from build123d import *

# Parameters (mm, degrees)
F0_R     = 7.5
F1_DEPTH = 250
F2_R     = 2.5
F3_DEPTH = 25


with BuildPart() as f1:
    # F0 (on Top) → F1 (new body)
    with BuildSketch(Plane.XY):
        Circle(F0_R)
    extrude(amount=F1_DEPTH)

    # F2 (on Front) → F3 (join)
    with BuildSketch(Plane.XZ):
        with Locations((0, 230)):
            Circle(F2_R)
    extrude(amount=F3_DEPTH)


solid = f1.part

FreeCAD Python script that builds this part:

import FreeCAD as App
import Part
import Sketcher

doc = App.newDocument("Part")
body = doc.addObject("PartDesign::Body", "Body")

sketch1 = doc.addObject("Sketcher::SketchObject", "Sketch")
body.addObject(sketch1)
sketch1.AttachmentSupport = (doc.XY_Plane, [""])
sketch1.MapMode = "FlatFace"
sketch1.addGeometry(Part.Circle(App.Vector(0, 0, 0), App.Vector(0, 0, 1), 7.5), False)
sketch1.addConstraint([
    Sketcher.Constraint("Coincident", 0, 3, -1, 1),
    Sketcher.Constraint("Diameter", 0, 15.0),
])
pad1 = doc.addObject("PartDesign::Pad", "Pad")
body.addObject(pad1)
pad1.Profile = sketch1
pad1.Length = 250

sketch2 = doc.addObject("Sketcher::SketchObject", "Sketch001")
body.addObject(sketch2)
sketch2.AttachmentSupport = (doc.XZ_Plane, [""])
sketch2.MapMode = "FlatFace"
sketch2.addGeometry(Part.Circle(App.Vector(0, 230, 0), App.Vector(0, 0, 1), 2.5), False)
sketch2.addConstraint([
    Sketcher.Constraint("PointOnObject", 0, 3, -2),
    Sketcher.Constraint("Diameter", 0, 5.0),
    Sketcher.Constraint("DistanceY", -1, 1, 0, 3, 230.0),
])
pad2 = doc.addObject("PartDesign::Pad", "Pad001")
body.addObject(pad2)
pad2.Profile = sketch2
pad2.Length = 25

doc.recompute()
